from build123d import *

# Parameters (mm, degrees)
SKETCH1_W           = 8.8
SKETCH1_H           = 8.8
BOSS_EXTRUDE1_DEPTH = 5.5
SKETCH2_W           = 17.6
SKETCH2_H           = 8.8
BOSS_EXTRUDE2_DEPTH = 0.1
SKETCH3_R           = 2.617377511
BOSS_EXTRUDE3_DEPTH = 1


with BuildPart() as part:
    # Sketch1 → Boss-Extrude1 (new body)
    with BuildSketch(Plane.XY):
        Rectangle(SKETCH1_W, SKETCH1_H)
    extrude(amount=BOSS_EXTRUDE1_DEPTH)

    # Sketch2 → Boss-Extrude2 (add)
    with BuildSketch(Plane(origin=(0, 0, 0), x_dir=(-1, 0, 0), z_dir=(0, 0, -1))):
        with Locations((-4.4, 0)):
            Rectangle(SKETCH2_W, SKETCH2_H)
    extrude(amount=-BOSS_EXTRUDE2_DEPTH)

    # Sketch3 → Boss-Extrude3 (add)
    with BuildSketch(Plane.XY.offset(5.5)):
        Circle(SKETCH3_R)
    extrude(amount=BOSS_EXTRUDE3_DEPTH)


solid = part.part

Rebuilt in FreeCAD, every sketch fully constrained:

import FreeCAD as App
import Part
import Sketcher

V = App.Vector
Q = App.Units.Quantity


def add_polygon(sketch, points):
    """Adds a closed chain of lines whose ends are joined by coincident constraints."""
    first, n = sketch.GeometryCount, len(points)
    for a, b in zip(points, points[1:] + points[:1]):
        sketch.addGeometry(Part.LineSegment(App.Vector(*a, 0), App.Vector(*b, 0)), False)
    for i in range(n):
        sketch.addConstraint(Sketcher.Constraint("Coincident", first + i, 2, first + (i + 1) % n, 1))

doc = App.newDocument("Part")
body = doc.addObject("PartDesign::Body", "Body")

sketch1 = doc.addObject("Sketcher::SketchObject", "Sketch")
body.addObject(sketch1)
sketch1.AttachmentSupport = (doc.XY_Plane, [""])
sketch1.MapMode = "FlatFace"
add_polygon(sketch1, [(-4, 4), (-4, -4), (4, -4), (4, 4)])
sketch1.addConstraint([
    Sketcher.Constraint("Vertical", 0),
    Sketcher.Constraint("Horizontal", 1),
    Sketcher.Constraint("Vertical", 2),
    Sketcher.Constraint("Horizontal", 3),
    Sketcher.Constraint("Symmetric", 0, 2, 2, 2, -1, 1),
    Sketcher.Constraint("Equal", 3, 0),
    Sketcher.Constraint("DistanceX", 1, 1, 1, 2, Q("8.8 mm")),
])
pad1 = doc.addObject("PartDesign::Pad", "Pad")
body.addObject(pad1)
pad1.Profile = sketch1
pad1.Length = 5.5

sketch2 = doc.addObject("Sketcher::SketchObject", "Sketch001")
body.addObject(sketch2)
sketch2.AttachmentSupport = (doc.XY_Plane, [""])
sketch2.MapMode = "FlatFace"
add_polygon(sketch2, [(13, 4), (13, -4), (-4, -4), (-4, 4)])
sketch2.addConstraint([
    Sketcher.Constraint("Vertical", 0),
    Sketcher.Constraint("Horizontal", 1),
    Sketcher.Constraint("Vertical", 2),
    Sketcher.Constraint("Horizontal", 3),
    Sketcher.Constraint("DistanceX", 1, 2, 1, 1, Q("17.6 mm")),
    Sketcher.Constraint("DistanceY", 0, 2, 0, 1, Q("8.8 mm")),
    Sketcher.Constraint("DistanceX", -1, 1, 0, 2, Q("13.2 mm")),
    Sketcher.Constraint("DistanceY", 0, 2, -1, 1, Q("4.4 mm")),
])
pad2 = doc.addObject("PartDesign::Pad", "Pad001")
body.addObject(pad2)
pad2.Profile = sketch2
pad2.Length = 0.1

sketch3 = doc.addObject("Sketcher::SketchObject", "Sketch002")
body.addObject(sketch3)
sketch3.AttachmentSupport = (doc.XY_Plane, [""])
sketch3.MapMode = "FlatFace"
sketch3.AttachmentOffset = App.Placement(V(0, 0, 5.5), App.Rotation())
sketch3.addGeometry(Part.Circle(V(0, 0, 0), V(0, 0, 1), 2.6), False)
sketch3.addConstraint([
    Sketcher.Constraint("Coincident", 0, 3, -1, 1),
    Sketcher.Constraint("Diameter", 0, Q("5.234755 mm")),
])
pad3 = doc.addObject("PartDesign::Pad", "Pad002")
body.addObject(pad3)
pad3.Profile = sketch3
pad3.Length = 1

doc.recompute()
